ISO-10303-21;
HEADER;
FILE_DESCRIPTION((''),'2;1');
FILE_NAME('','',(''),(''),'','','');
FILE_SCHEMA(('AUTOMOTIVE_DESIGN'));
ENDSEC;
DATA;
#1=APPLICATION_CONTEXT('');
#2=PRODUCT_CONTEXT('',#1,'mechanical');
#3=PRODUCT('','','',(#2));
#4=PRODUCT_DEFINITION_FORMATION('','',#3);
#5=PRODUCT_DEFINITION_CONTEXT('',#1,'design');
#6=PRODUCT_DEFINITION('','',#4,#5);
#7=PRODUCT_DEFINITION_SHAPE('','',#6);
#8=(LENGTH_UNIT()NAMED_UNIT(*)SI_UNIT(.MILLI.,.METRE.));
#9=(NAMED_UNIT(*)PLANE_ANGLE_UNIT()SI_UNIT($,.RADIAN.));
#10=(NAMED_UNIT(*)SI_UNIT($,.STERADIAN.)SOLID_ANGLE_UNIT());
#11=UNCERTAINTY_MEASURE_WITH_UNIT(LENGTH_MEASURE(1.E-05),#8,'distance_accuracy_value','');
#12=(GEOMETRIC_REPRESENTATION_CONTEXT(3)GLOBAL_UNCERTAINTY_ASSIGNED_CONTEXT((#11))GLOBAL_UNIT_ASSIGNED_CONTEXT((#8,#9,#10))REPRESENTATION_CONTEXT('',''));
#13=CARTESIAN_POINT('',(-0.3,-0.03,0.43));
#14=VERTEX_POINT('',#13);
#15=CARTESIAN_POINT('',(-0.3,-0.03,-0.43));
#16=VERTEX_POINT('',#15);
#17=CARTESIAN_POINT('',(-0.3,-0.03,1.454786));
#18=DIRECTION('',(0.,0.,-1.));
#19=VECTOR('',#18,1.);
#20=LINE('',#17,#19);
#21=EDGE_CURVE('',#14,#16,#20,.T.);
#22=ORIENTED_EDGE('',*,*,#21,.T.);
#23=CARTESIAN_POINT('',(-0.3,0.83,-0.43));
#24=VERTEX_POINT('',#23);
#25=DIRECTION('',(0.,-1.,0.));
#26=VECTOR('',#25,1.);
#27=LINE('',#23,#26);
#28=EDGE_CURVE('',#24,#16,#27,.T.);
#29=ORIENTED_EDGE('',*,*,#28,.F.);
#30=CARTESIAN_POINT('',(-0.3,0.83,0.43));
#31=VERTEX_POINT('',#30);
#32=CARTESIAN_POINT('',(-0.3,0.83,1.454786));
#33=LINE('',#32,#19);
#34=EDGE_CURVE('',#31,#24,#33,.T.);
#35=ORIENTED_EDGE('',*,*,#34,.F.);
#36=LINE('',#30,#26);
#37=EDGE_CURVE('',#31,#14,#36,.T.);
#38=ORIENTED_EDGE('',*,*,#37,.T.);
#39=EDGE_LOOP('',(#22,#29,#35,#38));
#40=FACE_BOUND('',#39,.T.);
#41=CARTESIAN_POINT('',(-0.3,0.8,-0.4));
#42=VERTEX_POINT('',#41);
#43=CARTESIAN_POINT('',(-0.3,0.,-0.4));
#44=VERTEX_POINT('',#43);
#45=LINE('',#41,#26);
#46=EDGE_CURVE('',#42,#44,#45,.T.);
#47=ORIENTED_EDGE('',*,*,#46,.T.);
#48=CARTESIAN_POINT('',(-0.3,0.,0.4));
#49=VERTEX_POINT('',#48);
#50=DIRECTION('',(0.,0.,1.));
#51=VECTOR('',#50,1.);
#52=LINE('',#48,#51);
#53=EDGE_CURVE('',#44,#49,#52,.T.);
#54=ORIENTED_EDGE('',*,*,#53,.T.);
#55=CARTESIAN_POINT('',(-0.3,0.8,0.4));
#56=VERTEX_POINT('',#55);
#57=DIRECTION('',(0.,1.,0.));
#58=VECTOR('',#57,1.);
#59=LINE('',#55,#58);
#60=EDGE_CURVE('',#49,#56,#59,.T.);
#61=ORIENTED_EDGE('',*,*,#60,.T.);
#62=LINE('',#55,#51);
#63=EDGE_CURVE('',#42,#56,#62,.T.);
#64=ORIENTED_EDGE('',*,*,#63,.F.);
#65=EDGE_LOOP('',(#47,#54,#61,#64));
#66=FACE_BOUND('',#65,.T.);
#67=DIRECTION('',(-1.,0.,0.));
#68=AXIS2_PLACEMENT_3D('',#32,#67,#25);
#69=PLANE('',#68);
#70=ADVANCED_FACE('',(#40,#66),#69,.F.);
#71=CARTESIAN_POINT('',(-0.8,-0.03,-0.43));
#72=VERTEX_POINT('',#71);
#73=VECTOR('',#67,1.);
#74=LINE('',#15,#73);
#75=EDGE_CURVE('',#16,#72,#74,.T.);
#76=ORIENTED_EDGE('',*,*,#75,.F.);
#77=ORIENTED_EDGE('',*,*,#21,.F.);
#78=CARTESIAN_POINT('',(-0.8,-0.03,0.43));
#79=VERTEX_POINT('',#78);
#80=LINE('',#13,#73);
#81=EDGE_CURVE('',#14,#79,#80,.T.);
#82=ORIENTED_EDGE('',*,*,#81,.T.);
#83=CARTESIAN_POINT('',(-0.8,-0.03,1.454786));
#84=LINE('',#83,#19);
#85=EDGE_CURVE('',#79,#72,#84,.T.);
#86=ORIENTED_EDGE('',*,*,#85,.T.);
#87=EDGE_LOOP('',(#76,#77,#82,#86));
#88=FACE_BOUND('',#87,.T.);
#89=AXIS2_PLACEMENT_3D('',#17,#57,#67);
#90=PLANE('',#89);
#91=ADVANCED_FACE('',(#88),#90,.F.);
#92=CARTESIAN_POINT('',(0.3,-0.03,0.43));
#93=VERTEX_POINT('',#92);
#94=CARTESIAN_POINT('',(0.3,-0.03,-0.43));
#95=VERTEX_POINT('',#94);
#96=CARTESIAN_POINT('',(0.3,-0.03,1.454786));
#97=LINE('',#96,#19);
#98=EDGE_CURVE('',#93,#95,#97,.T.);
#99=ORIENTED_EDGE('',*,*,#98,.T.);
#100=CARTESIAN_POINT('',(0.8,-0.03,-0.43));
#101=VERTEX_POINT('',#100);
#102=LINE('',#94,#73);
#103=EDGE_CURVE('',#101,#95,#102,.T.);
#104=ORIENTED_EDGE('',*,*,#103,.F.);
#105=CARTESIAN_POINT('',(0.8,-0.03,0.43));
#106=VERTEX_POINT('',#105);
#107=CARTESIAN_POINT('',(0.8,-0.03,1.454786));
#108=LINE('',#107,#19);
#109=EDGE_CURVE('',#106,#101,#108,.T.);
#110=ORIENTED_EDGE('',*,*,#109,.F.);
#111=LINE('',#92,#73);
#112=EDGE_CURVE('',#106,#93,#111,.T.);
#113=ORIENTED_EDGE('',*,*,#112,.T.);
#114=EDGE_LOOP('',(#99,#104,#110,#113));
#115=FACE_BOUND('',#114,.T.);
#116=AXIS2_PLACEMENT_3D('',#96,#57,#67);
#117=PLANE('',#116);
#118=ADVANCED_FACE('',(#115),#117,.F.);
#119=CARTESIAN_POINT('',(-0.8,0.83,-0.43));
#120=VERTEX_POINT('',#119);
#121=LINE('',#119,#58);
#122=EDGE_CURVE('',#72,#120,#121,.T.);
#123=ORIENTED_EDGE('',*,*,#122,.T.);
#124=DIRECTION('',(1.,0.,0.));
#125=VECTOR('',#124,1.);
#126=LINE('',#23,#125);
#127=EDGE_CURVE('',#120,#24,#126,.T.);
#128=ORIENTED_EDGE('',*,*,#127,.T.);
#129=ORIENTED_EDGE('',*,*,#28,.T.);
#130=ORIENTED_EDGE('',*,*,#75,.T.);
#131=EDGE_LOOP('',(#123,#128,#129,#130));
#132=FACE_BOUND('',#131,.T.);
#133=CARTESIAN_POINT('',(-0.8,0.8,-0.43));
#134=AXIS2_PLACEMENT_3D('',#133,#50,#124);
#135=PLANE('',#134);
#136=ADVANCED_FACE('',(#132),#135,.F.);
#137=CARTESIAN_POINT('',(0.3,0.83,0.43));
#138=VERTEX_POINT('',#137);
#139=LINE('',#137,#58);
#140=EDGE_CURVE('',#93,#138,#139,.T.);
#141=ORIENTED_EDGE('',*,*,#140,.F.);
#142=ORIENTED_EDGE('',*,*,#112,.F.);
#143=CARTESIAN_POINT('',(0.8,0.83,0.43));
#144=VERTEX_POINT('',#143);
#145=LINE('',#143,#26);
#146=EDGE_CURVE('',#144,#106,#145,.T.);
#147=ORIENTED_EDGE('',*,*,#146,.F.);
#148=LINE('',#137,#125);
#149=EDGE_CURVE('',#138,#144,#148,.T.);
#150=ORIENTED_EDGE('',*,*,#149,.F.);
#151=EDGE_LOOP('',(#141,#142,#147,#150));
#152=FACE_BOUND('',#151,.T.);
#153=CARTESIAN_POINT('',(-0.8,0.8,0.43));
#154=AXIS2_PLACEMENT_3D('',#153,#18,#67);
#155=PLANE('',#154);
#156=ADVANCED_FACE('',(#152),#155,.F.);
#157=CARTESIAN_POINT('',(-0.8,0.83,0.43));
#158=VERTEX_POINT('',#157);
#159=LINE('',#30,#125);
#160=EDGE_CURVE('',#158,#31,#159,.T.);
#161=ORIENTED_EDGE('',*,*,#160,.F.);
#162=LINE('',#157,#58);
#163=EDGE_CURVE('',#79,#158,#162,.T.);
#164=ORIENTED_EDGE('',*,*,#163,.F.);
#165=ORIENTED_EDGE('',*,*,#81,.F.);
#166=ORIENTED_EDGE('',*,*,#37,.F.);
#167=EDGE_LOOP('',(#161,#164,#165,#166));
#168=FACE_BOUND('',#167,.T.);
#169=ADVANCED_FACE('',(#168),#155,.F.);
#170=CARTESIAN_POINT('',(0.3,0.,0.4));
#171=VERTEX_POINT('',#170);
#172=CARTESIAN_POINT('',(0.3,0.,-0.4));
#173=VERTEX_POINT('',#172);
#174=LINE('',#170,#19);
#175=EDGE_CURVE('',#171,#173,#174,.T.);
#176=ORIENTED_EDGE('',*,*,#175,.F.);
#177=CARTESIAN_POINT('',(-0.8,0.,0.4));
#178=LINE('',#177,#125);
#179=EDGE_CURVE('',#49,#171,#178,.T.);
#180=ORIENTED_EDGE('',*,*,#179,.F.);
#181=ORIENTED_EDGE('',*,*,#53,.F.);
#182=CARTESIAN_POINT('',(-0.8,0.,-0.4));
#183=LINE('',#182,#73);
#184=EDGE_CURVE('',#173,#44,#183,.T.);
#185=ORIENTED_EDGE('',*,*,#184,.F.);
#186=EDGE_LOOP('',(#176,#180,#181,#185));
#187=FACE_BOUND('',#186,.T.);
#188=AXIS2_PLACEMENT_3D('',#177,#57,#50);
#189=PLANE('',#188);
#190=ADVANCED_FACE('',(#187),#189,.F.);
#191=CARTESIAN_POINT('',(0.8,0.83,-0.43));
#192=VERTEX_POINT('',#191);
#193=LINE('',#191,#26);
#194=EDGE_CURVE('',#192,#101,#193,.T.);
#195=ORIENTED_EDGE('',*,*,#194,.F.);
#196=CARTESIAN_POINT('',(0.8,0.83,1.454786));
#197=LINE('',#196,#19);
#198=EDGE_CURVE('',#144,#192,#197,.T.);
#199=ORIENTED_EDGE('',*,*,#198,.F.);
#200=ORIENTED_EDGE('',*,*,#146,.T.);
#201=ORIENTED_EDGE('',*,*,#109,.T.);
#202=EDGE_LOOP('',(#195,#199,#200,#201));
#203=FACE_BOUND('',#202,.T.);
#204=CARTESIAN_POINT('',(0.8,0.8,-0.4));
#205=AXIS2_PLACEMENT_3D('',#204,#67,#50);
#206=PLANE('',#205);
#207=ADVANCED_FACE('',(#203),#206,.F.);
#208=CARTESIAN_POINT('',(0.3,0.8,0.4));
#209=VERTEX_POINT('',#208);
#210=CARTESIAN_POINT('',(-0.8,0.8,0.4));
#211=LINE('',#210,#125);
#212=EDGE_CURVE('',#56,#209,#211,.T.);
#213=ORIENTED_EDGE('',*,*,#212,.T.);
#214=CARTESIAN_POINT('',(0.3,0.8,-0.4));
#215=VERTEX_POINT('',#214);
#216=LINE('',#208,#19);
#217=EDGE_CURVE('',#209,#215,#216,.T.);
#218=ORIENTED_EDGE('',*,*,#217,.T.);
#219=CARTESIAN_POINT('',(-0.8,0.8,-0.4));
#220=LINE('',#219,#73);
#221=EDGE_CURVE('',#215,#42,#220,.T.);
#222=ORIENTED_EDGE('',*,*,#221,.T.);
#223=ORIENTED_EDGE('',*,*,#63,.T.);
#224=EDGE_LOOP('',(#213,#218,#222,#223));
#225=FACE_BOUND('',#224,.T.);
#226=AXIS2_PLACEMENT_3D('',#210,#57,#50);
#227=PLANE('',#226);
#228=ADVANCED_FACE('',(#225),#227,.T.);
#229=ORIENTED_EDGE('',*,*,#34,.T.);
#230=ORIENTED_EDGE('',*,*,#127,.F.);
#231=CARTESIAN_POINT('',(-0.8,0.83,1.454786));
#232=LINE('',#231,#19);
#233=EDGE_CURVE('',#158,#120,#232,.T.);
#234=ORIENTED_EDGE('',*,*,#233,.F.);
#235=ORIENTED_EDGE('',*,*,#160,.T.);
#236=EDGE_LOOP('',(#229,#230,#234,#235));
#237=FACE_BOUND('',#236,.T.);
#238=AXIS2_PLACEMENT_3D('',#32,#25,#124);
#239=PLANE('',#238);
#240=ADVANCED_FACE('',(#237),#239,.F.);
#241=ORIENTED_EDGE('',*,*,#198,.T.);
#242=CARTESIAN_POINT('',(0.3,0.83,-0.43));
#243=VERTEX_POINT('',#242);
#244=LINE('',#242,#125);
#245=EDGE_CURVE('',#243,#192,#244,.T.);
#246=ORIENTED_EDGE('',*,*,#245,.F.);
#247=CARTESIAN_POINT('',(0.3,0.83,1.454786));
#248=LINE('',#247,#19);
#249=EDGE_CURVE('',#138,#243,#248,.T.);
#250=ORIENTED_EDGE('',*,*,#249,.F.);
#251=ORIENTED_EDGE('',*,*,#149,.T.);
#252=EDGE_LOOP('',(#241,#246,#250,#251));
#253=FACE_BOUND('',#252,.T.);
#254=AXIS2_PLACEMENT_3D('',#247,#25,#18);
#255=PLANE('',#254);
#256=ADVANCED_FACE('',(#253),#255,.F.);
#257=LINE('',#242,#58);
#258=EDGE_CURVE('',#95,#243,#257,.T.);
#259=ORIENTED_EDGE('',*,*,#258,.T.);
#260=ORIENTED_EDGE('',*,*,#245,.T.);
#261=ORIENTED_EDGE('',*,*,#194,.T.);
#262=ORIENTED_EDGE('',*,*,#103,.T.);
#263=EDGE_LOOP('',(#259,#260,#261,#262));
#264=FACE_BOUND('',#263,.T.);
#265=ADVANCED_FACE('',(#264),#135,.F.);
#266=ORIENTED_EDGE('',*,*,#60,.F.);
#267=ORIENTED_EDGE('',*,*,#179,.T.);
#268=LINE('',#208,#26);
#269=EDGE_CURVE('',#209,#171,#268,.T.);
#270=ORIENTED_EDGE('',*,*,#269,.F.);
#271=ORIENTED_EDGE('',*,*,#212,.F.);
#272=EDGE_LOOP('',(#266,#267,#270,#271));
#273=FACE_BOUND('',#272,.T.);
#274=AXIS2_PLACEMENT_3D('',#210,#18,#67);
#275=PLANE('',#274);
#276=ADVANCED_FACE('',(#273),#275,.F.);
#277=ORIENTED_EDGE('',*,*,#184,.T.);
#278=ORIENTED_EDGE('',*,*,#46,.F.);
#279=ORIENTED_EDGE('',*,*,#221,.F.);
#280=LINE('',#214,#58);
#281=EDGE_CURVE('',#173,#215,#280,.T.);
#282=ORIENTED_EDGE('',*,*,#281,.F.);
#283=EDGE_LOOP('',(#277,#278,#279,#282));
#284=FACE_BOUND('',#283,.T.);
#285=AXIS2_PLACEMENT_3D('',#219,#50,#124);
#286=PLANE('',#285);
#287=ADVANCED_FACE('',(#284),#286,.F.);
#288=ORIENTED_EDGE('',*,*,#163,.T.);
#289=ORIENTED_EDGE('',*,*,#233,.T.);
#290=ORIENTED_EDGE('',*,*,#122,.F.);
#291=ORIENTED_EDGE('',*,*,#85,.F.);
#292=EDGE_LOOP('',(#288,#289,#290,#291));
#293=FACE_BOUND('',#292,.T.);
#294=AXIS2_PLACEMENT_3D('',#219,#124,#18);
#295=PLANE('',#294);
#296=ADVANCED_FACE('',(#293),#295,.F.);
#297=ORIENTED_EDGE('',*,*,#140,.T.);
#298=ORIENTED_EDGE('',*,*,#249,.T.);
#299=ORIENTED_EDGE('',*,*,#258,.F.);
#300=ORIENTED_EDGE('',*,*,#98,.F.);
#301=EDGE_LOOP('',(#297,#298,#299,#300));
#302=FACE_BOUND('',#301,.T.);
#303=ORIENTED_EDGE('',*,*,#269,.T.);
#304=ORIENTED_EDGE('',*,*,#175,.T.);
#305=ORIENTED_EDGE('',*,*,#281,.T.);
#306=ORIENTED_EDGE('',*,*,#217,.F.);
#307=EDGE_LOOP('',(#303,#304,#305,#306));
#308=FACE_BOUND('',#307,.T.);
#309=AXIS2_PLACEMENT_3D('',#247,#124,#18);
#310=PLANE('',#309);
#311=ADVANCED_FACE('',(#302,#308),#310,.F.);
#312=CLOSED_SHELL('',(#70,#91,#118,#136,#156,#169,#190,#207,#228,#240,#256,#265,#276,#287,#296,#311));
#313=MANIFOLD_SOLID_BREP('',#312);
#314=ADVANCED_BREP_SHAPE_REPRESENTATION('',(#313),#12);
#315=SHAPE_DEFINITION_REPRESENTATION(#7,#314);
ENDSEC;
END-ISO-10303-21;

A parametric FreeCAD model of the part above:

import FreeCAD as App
import Part
import Sketcher

V = App.Vector

doc = App.newDocument("Part")
body = doc.addObject("PartDesign::Body", "Body")

# Sketch on XZ plane
sketch1 = body.newObject("Sketcher::SketchObject", "Sketch")
sketch1.AttachmentSupport = (doc.getObject("XZ_Plane"), [""])
sketch1.MapMode = "FlatFace"
sketch1.addGeometry(Part.LineSegment(V(-0.8, -0.4, 0), V(-0.8, 0.4, 0)), False)
sketch1.addGeometry(Part.LineSegment(V(-0.8, 0.4, 0), V(0.8, 0.4, 0)), False)
sketch1.addGeometry(Part.LineSegment(V(0.8, 0.4, 0), V(0.8, -0.4, 0)), False)
sketch1.addGeometry(Part.LineSegment(V(0.8, -0.4, 0), V(-0.8, -0.4, 0)), False)
sketch1.addConstraint(Sketcher.Constraint("Coincident", 0, 2, 1, 1))
sketch1.addConstraint(Sketcher.Constraint("Coincident", 1, 2, 2, 1))
sketch1.addConstraint(Sketcher.Constraint("Coincident", 2, 2, 3, 1))
sketch1.addConstraint(Sketcher.Constraint("Coincident", 3, 2, 0, 1))
sketch1.addConstraint(Sketcher.Constraint("Vertical", 0))
sketch1.addConstraint(Sketcher.Constraint("Horizontal", 1))
sketch1.addConstraint(Sketcher.Constraint("Vertical", 2))
sketch1.addConstraint(Sketcher.Constraint("Horizontal", 3))
sketch1.addConstraint(Sketcher.Constraint("Symmetric", 0, 2, 2, 2, -1, 1))
sketch1.addConstraint(Sketcher.Constraint("DistanceX", 1, 1, 1, 2, 1.6))
sketch1.addConstraint(Sketcher.Constraint("DistanceY", 0, 1, 0, 2, 0.8))
pad1 = body.newObject("PartDesign::Pad", "Pad")
pad1.Profile = sketch1
pad1.Length = 0.8
pad1.Reversed = True

# Sketch on XY plane
sketch2 = body.newObject("Sketcher::SketchObject", "Sketch001")
sketch2.AttachmentSupport = (doc.getObject("XY_Plane"), [""])
sketch2.MapMode = "FlatFace"
sketch2.addGeometry(Part.LineSegment(V(-0.8, 0.8, 0), V(-0.8, 0, 0)), False)
sketch2.addGeometry(Part.LineSegment(V(-0.8, 0, 0), V(-0.3, 0, 0)), False)
sketch2.addGeometry(Part.LineSegment(V(-0.3, 0, 0), V(-0.3, 0.8, 0)), False)
sketch2.addGeometry(Part.LineSegment(V(-0.3, 0.8, 0), V(-0.8, 0.8, 0)), False)
sketch2.addGeometry(Part.LineSegment(V(0.3, 0.8, 0), V(0.3, 0, 0)), False)
sketch2.addGeometry(Part.LineSegment(V(0.3, 0, 0), V(0.8, 0, 0)), False)
sketch2.addGeometry(Part.LineSegment(V(0.8, 0, 0), V(0.8, 0.8, 0)), False)
sketch2.addGeometry(Part.LineSegment(V(0.8, 0.8, 0), V(0.3, 0.8, 0)), False)
sketch2.addConstraint(Sketcher.Constraint("Coincident", 0, 2, 1, 1))
sketch2.addConstraint(Sketcher.Constraint("Coincident", 1, 2, 2, 1))
sketch2.addConstraint(Sketcher.Constraint("Coincident", 2, 2, 3, 1))
sketch2.addConstraint(Sketcher.Constraint("Coincident", 3, 2, 0, 1))
sketch2.addConstraint(Sketcher.Constraint("Coincident", 4, 2, 5, 1))
sketch2.addConstraint(Sketcher.Constraint("Coincident", 5, 2, 6, 1))
sketch2.addConstraint(Sketcher.Constraint("Coincident", 6, 2, 7, 1))
sketch2.addConstraint(Sketcher.Constraint("Coincident", 7, 2, 4, 1))
sketch2.addConstraint(Sketcher.Constraint("Vertical", 0))
sketch2.addConstraint(Sketcher.Constraint("Horizontal", 1))
sketch2.addConstraint(Sketcher.Constraint("Vertical", 2))
sketch2.addConstraint(Sketcher.Constraint("Horizontal", 3))
sketch2.addConstraint(Sketcher.Constraint("Vertical", 4))
sketch2.addConstraint(Sketcher.Constraint("Horizontal", 5))
sketch2.addConstraint(Sketcher.Constraint("Vertical", 6))
sketch2.addConstraint(Sketcher.Constraint("Horizontal", 7))
sketch2.addConstraint(Sketcher.Constraint("Symmetric", 1, 2, 4, 2, -2))
sketch2.addConstraint(Sketcher.Constraint("Symmetric", 3, 2, 6, 2, -2))
sketch2.addConstraint(Sketcher.Constraint("DistanceX", 1, 1, 1, 2, 0.5))
sketch2.addConstraint(Sketcher.Constraint("DistanceY", 0, 2, 0, 1, 0.86))
sketch2.addConstraint(Sketcher.Constraint("DistanceX", 0, 2, -1, 1, 0.8))
sketch2.addConstraint(Sketcher.Constraint("DistanceY", 0, 2, -1, 1, 0.03))
pad2 = body.newObject("PartDesign::Pad", "Pad001")
pad2.Profile = sketch2
pad2.Type = "TwoLengths"
pad2.Length = 0.43
pad2.Length2 = 0.43

doc.recompute()
